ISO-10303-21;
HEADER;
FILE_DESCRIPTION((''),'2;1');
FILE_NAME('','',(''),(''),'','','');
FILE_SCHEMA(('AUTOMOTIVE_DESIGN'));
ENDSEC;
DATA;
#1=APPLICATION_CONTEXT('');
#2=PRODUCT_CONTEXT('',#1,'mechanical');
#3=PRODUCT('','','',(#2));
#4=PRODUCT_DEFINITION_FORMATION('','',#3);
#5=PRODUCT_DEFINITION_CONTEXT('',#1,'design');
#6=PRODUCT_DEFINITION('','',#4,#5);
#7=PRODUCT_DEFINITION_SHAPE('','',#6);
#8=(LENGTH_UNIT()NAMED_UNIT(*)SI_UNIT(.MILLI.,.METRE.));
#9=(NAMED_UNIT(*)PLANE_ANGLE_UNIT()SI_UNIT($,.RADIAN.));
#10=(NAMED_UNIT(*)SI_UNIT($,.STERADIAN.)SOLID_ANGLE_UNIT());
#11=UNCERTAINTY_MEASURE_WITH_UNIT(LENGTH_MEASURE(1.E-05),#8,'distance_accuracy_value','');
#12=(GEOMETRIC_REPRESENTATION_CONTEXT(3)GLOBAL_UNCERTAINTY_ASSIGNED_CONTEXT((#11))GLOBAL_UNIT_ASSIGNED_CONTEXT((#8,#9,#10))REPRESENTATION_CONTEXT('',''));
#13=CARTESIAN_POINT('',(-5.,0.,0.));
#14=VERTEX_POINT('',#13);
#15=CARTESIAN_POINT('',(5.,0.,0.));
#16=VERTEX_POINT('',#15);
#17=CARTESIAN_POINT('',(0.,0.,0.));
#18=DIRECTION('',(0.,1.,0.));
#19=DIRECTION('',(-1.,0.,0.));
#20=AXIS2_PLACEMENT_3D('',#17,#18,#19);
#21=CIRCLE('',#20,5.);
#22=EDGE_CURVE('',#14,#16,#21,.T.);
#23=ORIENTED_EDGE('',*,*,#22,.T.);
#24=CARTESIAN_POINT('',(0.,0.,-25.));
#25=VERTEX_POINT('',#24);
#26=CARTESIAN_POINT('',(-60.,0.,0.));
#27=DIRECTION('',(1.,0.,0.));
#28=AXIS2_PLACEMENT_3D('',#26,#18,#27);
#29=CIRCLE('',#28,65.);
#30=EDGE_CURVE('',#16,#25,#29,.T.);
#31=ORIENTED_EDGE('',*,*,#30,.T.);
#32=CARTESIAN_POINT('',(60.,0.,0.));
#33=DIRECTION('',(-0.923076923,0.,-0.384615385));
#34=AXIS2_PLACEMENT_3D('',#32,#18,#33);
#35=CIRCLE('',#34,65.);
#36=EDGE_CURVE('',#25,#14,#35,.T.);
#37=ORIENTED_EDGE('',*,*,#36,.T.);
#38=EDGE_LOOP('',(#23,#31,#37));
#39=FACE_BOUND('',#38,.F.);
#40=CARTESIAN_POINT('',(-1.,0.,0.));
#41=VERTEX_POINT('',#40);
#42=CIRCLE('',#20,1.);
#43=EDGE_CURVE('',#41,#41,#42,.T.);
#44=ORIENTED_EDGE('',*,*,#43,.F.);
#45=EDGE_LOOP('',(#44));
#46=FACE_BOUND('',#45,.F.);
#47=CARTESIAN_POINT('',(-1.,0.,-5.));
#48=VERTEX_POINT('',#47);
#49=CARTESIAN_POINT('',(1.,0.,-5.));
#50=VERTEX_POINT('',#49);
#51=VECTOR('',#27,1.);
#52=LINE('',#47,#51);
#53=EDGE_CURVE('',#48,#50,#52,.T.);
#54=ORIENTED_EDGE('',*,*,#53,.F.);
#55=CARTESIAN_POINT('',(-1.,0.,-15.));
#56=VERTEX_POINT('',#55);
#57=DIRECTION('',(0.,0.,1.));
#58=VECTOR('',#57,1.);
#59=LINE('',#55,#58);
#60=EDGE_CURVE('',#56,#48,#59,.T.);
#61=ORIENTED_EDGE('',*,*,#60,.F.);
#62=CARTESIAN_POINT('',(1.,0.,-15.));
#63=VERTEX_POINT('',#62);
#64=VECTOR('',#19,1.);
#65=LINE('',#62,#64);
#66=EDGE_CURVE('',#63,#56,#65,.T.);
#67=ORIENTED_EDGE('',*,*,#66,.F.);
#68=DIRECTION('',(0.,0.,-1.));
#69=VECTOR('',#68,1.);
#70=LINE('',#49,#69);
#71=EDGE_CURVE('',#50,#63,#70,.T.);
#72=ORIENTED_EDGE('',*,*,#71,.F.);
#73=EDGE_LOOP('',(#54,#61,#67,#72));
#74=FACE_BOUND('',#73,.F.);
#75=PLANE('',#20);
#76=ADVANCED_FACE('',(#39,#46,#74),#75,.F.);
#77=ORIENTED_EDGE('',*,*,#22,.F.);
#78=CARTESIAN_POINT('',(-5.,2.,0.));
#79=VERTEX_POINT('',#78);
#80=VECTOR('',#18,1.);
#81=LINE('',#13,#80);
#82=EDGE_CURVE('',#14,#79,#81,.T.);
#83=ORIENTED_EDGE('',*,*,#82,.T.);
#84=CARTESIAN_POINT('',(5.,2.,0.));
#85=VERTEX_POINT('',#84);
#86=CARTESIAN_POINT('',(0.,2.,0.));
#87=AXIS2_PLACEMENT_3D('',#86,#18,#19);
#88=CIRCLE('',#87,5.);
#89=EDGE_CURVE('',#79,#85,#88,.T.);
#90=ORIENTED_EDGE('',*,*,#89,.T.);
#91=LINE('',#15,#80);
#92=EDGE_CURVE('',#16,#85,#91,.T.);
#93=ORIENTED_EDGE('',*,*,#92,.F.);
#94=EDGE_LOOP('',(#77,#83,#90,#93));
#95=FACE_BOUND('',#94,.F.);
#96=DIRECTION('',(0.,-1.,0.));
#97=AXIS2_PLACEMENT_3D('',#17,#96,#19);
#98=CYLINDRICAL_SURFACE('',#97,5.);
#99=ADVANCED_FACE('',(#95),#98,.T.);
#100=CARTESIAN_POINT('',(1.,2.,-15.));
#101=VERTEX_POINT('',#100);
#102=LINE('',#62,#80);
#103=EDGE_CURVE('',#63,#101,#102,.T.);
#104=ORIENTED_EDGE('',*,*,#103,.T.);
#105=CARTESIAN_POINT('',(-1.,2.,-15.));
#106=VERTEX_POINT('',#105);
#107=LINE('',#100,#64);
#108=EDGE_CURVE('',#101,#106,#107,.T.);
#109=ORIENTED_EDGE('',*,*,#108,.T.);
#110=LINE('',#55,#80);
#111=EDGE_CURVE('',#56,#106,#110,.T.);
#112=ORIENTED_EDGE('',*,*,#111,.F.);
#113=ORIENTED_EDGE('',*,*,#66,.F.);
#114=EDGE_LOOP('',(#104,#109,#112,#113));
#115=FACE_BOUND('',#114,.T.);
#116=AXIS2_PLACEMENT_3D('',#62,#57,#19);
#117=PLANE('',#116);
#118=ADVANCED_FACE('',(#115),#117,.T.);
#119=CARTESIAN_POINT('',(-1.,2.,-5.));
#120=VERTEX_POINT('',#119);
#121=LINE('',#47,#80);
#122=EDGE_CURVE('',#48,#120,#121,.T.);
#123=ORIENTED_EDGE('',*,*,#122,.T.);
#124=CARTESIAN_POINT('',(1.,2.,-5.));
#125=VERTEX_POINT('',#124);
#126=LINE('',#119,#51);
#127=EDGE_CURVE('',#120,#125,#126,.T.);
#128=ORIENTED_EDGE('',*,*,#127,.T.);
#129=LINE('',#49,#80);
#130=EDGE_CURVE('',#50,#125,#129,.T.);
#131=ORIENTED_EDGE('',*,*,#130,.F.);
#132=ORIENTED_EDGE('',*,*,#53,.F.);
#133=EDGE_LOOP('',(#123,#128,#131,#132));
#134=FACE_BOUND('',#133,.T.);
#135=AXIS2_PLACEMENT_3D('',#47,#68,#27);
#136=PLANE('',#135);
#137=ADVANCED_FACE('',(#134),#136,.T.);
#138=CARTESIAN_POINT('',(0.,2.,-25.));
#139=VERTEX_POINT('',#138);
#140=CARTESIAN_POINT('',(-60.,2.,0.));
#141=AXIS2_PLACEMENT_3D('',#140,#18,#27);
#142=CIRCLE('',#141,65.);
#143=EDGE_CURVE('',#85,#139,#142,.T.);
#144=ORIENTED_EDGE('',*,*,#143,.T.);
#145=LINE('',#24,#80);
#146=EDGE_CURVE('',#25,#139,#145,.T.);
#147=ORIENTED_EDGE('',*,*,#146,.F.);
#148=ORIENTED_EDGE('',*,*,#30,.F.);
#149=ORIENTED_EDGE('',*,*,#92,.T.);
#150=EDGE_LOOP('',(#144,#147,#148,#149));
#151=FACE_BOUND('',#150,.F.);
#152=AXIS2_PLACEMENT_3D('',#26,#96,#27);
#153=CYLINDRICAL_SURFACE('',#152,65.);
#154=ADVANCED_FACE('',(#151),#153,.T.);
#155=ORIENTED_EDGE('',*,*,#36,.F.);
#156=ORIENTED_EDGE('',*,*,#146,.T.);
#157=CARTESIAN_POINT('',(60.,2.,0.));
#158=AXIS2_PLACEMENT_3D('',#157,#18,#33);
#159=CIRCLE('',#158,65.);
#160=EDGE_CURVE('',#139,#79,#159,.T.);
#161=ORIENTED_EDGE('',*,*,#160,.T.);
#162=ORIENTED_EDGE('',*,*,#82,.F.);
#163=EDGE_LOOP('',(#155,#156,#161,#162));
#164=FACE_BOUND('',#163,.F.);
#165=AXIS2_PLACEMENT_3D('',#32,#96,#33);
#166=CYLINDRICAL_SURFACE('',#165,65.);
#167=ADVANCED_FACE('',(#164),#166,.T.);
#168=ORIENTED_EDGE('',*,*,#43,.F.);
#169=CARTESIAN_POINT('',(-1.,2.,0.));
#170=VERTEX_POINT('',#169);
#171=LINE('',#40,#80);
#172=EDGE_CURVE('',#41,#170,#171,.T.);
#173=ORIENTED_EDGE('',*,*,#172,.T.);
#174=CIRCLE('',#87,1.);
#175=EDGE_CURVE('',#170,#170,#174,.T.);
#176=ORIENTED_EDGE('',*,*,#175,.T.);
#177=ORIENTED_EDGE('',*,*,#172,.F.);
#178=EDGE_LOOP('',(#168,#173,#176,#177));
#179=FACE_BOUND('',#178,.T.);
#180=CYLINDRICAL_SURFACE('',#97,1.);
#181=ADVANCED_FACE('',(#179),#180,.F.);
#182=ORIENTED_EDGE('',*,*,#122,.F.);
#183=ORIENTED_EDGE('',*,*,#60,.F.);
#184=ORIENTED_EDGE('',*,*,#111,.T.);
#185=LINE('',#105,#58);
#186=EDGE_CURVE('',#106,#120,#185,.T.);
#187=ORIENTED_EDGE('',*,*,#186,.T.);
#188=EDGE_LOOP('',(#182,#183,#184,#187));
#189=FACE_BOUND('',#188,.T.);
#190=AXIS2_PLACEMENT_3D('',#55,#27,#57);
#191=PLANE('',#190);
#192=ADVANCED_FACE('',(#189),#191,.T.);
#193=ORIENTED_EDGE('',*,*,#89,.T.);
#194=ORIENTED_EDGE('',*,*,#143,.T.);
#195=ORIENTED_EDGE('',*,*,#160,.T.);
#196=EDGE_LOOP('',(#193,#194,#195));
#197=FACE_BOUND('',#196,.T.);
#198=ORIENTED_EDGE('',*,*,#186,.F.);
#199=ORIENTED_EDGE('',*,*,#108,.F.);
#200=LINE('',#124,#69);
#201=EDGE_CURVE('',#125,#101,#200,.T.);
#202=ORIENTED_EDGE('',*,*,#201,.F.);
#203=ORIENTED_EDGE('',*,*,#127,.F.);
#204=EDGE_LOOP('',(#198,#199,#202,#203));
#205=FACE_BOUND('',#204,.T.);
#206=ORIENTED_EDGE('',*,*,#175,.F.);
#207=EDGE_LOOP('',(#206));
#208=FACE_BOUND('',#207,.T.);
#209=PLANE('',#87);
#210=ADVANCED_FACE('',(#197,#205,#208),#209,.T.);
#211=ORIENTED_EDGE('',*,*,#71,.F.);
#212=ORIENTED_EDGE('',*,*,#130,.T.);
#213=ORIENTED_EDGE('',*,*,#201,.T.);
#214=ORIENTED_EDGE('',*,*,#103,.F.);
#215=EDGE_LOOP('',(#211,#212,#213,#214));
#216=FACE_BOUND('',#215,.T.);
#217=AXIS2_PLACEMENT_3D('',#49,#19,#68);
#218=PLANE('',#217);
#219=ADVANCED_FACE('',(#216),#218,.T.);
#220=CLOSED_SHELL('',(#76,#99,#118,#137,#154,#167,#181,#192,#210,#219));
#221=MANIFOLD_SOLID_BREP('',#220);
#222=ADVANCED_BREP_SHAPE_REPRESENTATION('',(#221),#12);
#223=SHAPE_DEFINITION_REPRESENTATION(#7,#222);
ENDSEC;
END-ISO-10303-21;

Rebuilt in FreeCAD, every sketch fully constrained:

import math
import FreeCAD as App
import Part
import Sketcher

doc = App.newDocument("Part")
body = doc.addObject("PartDesign::Body", "Body")

sketch1 = body.newObject("Sketcher::SketchObject", "Sketch")
sketch1.AttachmentSupport = (doc.getObject("XZ_Plane"), [""])
sketch1.MapMode = "FlatFace"
sketch1.addGeometry(Part.ArcOfCircle(Part.Circle(App.Vector(60, 0, 0), App.Vector(0, 0, 1), 65), math.radians(180), math.radians(203)), False)
sketch1.addGeometry(Part.ArcOfCircle(Part.Circle(App.Vector(0, 0, 0), App.Vector(0, 0, 1), 5), math.radians(0), math.radians(180)), False)
sketch1.addGeometry(Part.ArcOfCircle(Part.Circle(App.Vector(-60, 0, 0), App.Vector(0, 0, 1), 65), math.radians(-23), math.radians(0)), False)
sketch1.addGeometry(Part.LineSegment(App.Vector(1, -5, 0), App.Vector(-1, -5, 0)), False)
sketch1.addGeometry(Part.LineSegment(App.Vector(-1, -5, 0), App.Vector(-1, -15, 0)), False)
sketch1.addGeometry(Part.LineSegment(App.Vector(-1, -15, 0), App.Vector(1, -15, 0)), False)
sketch1.addGeometry(Part.LineSegment(App.Vector(1, -15, 0), App.Vector(1, -5, 0)), False)
sketch1.addGeometry(Part.Circle(App.Vector(0, 0, 0), App.Vector(0, 0, 1), 1), False)
sketch1.addConstraint(Sketcher.Constraint("Tangent", 0, 1, 1, 2))
sketch1.addConstraint(Sketcher.Constraint("Tangent", 1, 1, 2, 2))
sketch1.addConstraint(Sketcher.Constraint("Coincident", 2, 1, 0, 2))
sketch1.addConstraint(Sketcher.Constraint("Coincident", 3, 2, 4, 1))
sketch1.addConstraint(Sketcher.Constraint("Coincident", 4, 2, 5, 1))
sketch1.addConstraint(Sketcher.Constraint("Coincident", 5, 2, 6, 1))
sketch1.addConstraint(Sketcher.Constraint("Coincident", 6, 2, 3, 1))
sketch1.addConstraint(Sketcher.Constraint("Horizontal", 3))
sketch1.addConstraint(Sketcher.Constraint("Vertical", 4))
sketch1.addConstraint(Sketcher.Constraint("Horizontal", 5))
sketch1.addConstraint(Sketcher.Constraint("Vertical", 6))
sketch1.addConstraint(Sketcher.Constraint("Coincident", 1, 3, -1, 1))
sketch1.addConstraint(Sketcher.Constraint("Coincident", 7, 3, -1, 1))
sketch1.addConstraint(Sketcher.Constraint("Equal", 0, 2))
sketch1.addConstraint(Sketcher.Constraint("PointOnObject", 0, 3, -1))
sketch1.addConstraint(Sketcher.Constraint("PointOnObject", 2, 3, -1))
sketch1.addConstraint(Sketcher.Constraint("Diameter", 7, 2.0))
sketch1.addConstraint(Sketcher.Constraint("Radius", 1, 5.0))
sketch1.addConstraint(Sketcher.Constraint("DistanceX", 3, 2, 3, 1, 2.0))
sketch1.addConstraint(Sketcher.Constraint("DistanceY", 4, 2, 4, 1, 10.0))
sketch1.addConstraint(Sketcher.Constraint("DistanceX", 3, 2, -1, 1, 1.0))
sketch1.addConstraint(Sketcher.Constraint("DistanceY", 3, 2, -1, 1, 5.0))
sketch1.addConstraint(Sketcher.Constraint("Radius", 0, 65.0))
pad1 = body.newObject("PartDesign::Pad", "Pad")
pad1.Profile = sketch1
pad1.Length = 2
pad1.Reversed = True

doc.recompute()
